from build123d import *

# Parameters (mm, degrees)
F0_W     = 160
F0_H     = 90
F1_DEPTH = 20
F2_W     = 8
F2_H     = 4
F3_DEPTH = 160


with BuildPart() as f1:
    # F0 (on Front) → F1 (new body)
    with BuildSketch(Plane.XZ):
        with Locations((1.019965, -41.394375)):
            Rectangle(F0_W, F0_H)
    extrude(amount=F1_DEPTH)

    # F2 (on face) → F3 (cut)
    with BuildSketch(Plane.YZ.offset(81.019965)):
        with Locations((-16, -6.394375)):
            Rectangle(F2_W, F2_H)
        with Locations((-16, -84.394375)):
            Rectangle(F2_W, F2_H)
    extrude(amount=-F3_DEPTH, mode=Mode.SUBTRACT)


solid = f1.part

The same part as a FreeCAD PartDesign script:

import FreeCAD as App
import Part
import Sketcher

V = App.Vector

doc = App.newDocument("Part")
params = doc.addObject("Spreadsheet::Sheet", "Params")
for row, (alias, value) in enumerate([
    ("sketch1_width", "160 mm"),
    ("sketch1_height", "90 mm"),
    ("pad1_length", "20 mm"),
    ("sketch2_width", "8 mm"),
    ("sketch2_height", "4 mm"),
    ("pocket1_length", "160 mm"),
], start=1):
    params.set(f"A{row}", alias)
    params.set(f"B{row}", "=" + value)
    params.setAlias(f"B{row}", alias)

body = doc.addObject("PartDesign::Body", "Body")

sketch1 = body.newObject("Sketcher::SketchObject", "Sketch")
sketch1.AttachmentSupport = (doc.getObject("XZ_Plane"), [""])
sketch1.MapMode = "FlatFace"
sketch1.addGeometry([
    Part.LineSegment(V(-78.980035, 3.605625, 0), V(-78.980035, -86.394375, 0)),
    Part.LineSegment(V(-78.980035, -86.394375, 0), V(81.019965, -86.394375, 0)),
    Part.LineSegment(V(81.019965, -86.394375, 0), V(81.019965, 3.605625, 0)),
    Part.LineSegment(V(81.019965, 3.605625, 0), V(-78.980035, 3.605625, 0)),
], False)
sketch1.addConstraint([
    Sketcher.Constraint("Coincident", 0, 2, 1, 1),
    Sketcher.Constraint("Coincident", 1, 2, 2, 1),
    Sketcher.Constraint("Coincident", 2, 2, 3, 1),
    Sketcher.Constraint("Coincident", 3, 2, 0, 1),
    Sketcher.Constraint("Vertical", 0),
    Sketcher.Constraint("Horizontal", 1),
    Sketcher.Constraint("Vertical", 2),
    Sketcher.Constraint("Horizontal", 3),
    Sketcher.Constraint("DistanceX", 1, 1, 1, 2, 160.0),
    Sketcher.Constraint("DistanceY", 0, 2, 0, 1, 90.0),
    Sketcher.Constraint("DistanceX", 0, 2, -1, 1, 78.980035),
    Sketcher.Constraint("DistanceY", 0, 2, -1, 1, 86.394375),
])
sketch1.setExpression("Constraints[8]", "Params.sketch1_width")
sketch1.setExpression("Constraints[9]", "Params.sketch1_height")
pad1 = body.newObject("PartDesign::Pad", "Pad")
pad1.Profile = sketch1
pad1.setExpression("Length", "Params.pad1_length")

sketch2 = body.newObject("Sketcher::SketchObject", "Sketch001")
sketch2.AttachmentSupport = (doc.getObject("YZ_Plane"), [""])
sketch2.MapMode = "FlatFace"
sketch2.AttachmentOffset = App.Placement(V(0, 0, 81.019965), App.Rotation())
sketch2.addGeometry([
    Part.LineSegment(V(-20, -4.394375, 0), V(-20, -8.394375, 0)),
    Part.LineSegment(V(-20, -8.394375, 0), V(-12, -8.394375, 0)),
    Part.LineSegment(V(-12, -8.394375, 0), V(-12, -4.394375, 0)),
    Part.LineSegment(V(-12, -4.394375, 0), V(-20, -4.394375, 0)),
    Part.LineSegment(V(-20, -82.394375, 0), V(-20, -86.394375, 0)),
    Part.LineSegment(V(-20, -86.394375, 0), V(-12, -86.394375, 0)),
    Part.LineSegment(V(-12, -86.394375, 0), V(-12, -82.394375, 0)),
    Part.LineSegment(V(-12, -82.394375, 0), V(-20, -82.394375, 0)),
], False)
sketch2.addConstraint([
    Sketcher.Constraint("Coincident", 0, 2, 1, 1),
    Sketcher.Constraint("Coincident", 1, 2, 2, 1),
    Sketcher.Constraint("Coincident", 2, 2, 3, 1),
    Sketcher.Constraint("Coincident", 3, 2, 0, 1),
    Sketcher.Constraint("Coincident", 4, 2, 5, 1),
    Sketcher.Constraint("Coincident", 5, 2, 6, 1),
    Sketcher.Constraint("Coincident", 6, 2, 7, 1),
    Sketcher.Constraint("Coincident", 7, 2, 4, 1),
    Sketcher.Constraint("Vertical", 0),
    Sketcher.Constraint("Horizontal", 1),
    Sketcher.Constraint("Vertical", 2),
    Sketcher.Constraint("Horizontal", 3),
    Sketcher.Constraint("Vertical", 4),
    Sketcher.Constraint("Horizontal", 5),
    Sketcher.Constraint("Vertical", 6),
    Sketcher.Constraint("Horizontal", 7),
    Sketcher.Constraint("Vertical", 3, 2, 4, 2),
    Sketcher.Constraint("Vertical", 2, 2, 5, 2),
    Sketcher.Constraint("Equal", 2, 4),
    Sketcher.Constraint("DistanceX", 1, 1, 1, 2, 8.0),
    Sketcher.Constraint("DistanceY", 0, 2, 0, 1, 4.0),
    Sketcher.Constraint("DistanceX", 0, 2, -1, 1, 20.0),
    Sketcher.Constraint("DistanceY", 4, 2, 0, 2, 78.0),
    Sketcher.Constraint("DistanceY", 0, 2, -1, 1, 8.394375),
])
sketch2.setExpression("Constraints[19]", "Params.sketch2_width")
sketch2.setExpression("Constraints[20]", "Params.sketch2_height")
pocket1 = body.newObject("PartDesign::Pocket", "Pocket")
pocket1.Profile = sketch2
pocket1.setExpression("Length", "Params.pocket1_length")

doc.recompute()
